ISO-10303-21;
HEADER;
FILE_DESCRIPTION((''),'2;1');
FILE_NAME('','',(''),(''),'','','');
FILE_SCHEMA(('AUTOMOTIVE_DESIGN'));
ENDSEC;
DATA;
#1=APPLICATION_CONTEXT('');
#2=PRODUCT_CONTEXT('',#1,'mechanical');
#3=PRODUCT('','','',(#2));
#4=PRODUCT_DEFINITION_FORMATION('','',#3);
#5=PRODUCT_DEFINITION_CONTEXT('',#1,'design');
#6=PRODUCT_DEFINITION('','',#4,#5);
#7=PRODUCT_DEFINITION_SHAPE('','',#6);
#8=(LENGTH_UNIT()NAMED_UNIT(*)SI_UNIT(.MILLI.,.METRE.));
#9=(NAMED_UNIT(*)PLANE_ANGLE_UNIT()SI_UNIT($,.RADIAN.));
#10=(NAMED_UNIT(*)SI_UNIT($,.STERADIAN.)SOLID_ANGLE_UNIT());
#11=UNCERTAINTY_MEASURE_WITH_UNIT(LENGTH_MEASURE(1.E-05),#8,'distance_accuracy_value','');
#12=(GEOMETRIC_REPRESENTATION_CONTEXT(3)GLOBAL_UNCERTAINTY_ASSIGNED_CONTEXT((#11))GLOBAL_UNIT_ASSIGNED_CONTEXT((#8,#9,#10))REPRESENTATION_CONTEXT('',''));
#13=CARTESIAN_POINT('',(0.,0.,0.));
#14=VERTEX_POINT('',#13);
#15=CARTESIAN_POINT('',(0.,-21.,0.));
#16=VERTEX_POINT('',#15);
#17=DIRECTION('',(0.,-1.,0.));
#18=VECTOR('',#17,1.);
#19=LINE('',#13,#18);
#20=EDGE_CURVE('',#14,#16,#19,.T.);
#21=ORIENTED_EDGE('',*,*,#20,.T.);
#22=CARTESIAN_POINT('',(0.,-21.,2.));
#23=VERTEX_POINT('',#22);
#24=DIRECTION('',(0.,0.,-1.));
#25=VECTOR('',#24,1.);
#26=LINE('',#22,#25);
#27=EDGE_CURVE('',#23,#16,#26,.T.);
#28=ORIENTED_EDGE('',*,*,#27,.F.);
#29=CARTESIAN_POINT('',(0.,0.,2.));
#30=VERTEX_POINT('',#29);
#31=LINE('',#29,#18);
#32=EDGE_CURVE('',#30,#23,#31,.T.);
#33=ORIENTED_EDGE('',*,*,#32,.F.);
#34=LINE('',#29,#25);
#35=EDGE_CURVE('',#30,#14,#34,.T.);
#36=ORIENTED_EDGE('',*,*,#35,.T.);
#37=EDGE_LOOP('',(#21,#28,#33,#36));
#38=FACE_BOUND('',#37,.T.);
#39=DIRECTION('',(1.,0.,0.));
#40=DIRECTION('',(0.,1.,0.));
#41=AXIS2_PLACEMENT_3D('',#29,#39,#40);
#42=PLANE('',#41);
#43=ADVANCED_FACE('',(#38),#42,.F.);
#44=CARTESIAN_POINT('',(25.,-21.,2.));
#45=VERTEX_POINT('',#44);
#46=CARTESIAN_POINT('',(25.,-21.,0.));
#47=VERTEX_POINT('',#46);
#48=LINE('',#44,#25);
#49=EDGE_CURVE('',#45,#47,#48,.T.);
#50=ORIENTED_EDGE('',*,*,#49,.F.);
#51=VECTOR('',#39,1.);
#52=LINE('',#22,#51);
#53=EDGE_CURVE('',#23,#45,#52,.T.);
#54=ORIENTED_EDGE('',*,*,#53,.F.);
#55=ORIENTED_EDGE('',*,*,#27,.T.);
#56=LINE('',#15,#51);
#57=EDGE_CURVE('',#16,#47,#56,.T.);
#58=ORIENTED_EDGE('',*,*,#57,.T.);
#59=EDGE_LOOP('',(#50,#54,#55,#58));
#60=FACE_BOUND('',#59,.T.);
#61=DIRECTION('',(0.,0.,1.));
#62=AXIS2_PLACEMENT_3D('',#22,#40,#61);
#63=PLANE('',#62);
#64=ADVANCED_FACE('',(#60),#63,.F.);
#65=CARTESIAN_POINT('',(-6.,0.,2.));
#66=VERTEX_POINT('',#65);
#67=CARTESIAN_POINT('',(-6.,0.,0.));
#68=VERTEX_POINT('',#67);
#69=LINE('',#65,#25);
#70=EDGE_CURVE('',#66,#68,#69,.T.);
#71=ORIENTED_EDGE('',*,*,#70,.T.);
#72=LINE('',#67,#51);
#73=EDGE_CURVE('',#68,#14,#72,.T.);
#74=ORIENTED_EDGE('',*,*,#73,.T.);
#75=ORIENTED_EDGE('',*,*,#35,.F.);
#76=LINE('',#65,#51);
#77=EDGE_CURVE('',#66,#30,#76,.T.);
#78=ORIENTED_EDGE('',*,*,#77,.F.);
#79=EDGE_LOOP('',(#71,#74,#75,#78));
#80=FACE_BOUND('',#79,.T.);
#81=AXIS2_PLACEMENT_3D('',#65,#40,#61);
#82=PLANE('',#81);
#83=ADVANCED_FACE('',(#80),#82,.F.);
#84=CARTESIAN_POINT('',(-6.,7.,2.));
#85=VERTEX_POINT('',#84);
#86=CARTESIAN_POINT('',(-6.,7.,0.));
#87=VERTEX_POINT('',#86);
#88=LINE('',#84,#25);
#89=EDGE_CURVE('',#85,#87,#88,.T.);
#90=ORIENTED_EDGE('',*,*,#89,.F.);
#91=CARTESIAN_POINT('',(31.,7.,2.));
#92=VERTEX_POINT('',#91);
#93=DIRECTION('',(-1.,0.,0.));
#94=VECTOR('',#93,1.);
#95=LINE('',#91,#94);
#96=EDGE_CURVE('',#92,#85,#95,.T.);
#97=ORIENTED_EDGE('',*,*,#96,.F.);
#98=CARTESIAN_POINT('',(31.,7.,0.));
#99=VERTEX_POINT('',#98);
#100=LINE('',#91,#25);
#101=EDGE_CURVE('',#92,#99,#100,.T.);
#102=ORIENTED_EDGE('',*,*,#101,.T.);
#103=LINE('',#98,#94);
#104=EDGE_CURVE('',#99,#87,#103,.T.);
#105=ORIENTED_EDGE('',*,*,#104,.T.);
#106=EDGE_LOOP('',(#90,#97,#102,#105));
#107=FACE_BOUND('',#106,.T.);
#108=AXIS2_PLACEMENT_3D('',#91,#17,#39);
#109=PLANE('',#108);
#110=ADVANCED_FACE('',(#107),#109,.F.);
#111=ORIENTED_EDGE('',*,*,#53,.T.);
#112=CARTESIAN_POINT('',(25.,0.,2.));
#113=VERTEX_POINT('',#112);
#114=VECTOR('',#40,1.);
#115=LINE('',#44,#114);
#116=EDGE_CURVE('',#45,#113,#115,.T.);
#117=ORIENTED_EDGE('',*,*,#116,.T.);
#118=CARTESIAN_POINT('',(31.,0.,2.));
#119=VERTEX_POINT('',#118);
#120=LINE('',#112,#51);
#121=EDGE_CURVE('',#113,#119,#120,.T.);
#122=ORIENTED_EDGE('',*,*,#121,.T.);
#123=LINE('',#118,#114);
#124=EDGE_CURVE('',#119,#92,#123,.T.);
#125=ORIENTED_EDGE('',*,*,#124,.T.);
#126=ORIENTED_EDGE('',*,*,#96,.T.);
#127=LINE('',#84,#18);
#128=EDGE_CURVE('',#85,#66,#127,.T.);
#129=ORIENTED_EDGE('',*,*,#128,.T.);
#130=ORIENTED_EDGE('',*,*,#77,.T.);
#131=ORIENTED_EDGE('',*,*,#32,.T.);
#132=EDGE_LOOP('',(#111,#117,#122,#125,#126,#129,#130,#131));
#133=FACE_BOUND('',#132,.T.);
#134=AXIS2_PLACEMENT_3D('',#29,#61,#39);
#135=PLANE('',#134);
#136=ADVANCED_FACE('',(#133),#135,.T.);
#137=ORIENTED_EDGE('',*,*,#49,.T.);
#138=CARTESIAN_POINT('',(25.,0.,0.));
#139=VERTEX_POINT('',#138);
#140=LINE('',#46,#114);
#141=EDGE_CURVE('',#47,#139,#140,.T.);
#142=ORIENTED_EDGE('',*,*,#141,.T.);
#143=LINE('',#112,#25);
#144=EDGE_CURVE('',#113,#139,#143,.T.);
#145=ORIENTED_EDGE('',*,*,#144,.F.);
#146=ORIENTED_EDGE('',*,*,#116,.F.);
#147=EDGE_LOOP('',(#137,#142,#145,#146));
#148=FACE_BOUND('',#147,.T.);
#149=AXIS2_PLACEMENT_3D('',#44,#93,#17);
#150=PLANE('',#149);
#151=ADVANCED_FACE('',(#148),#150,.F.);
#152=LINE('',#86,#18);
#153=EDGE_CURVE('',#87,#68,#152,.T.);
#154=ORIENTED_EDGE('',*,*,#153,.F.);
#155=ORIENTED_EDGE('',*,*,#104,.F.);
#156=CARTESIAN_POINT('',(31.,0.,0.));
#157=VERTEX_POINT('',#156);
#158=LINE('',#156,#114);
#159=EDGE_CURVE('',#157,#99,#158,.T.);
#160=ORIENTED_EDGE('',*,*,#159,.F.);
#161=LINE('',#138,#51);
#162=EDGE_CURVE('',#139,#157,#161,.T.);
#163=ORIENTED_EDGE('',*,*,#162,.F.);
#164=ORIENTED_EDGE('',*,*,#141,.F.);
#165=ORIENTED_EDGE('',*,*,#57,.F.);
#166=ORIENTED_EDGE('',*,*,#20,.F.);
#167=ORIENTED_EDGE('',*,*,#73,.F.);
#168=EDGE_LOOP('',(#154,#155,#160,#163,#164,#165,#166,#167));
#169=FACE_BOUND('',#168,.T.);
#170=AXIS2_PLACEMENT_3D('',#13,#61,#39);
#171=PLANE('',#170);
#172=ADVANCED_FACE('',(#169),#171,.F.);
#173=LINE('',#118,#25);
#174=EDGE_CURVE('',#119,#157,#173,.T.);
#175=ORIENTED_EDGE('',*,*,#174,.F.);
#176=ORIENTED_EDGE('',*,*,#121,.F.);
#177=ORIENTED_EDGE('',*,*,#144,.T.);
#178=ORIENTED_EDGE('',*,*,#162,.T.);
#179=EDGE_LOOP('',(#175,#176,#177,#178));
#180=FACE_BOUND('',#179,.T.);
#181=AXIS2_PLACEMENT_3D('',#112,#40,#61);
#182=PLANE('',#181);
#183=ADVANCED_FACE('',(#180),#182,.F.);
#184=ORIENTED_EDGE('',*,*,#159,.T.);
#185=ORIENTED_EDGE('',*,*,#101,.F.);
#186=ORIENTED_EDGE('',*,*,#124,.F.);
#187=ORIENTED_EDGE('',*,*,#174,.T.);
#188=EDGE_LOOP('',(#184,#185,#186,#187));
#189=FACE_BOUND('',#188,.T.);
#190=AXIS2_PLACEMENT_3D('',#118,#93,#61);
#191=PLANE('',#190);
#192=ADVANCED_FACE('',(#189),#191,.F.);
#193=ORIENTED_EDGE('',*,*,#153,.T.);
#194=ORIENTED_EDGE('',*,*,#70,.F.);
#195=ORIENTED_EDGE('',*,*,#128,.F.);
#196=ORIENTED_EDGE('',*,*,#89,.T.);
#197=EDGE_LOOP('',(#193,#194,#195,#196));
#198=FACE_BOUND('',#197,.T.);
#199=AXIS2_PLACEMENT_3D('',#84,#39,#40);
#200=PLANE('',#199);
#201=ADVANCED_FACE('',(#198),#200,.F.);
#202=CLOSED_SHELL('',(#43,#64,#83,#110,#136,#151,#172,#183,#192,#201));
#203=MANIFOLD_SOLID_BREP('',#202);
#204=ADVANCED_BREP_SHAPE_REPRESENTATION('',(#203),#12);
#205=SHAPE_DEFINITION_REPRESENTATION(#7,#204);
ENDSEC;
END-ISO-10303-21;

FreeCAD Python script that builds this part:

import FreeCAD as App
import Part
import Sketcher
from FreeCAD import Vector
Q = App.Units.Quantity

doc = App.newDocument("Part")
body = doc.addObject("PartDesign::Body", "Body")

sketch1 = doc.addObject("Sketcher::SketchObject", "Sketch")
body.addObject(sketch1)
sketch1.AttachmentSupport = (doc.XY_Plane, [""])
sketch1.MapMode = "FlatFace"
sketch1.addGeometry([
    Part.LineSegment(Vector(0, 0, 0), Vector(0, -21, 0)),
    Part.LineSegment(Vector(0, -21, 0), Vector(25, -21, 0)),
    Part.LineSegment(Vector(25, -21, 0), Vector(25, 0, 0)),
    Part.LineSegment(Vector(25, 0, 0), Vector(31, 0, 0)),
    Part.LineSegment(Vector(31, 0, 0), Vector(31, 7, 0)),
    Part.LineSegment(Vector(31, 7, 0), Vector(-6, 7, 0)),
    Part.LineSegment(Vector(-6, 7, 0), Vector(-6, 0, 0)),
    Part.LineSegment(Vector(-6, 0, 0), Vector(0, 0, 0)),
], False)
sketch1.addConstraint([
    Sketcher.Constraint("Coincident", 0, 2, 1, 1),
    Sketcher.Constraint("Coincident", 1, 2, 2, 1),
    Sketcher.Constraint("Coincident", 2, 2, 3, 1),
    Sketcher.Constraint("Coincident", 3, 2, 4, 1),
    Sketcher.Constraint("Coincident", 4, 2, 5, 1),
    Sketcher.Constraint("Coincident", 5, 2, 6, 1),
    Sketcher.Constraint("Coincident", 6, 2, 7, 1),
    Sketcher.Constraint("Coincident", 7, 2, 0, 1),
    Sketcher.Constraint("Vertical", 0),
    Sketcher.Constraint("Horizontal", 1),
    Sketcher.Constraint("Vertical", 2),
    Sketcher.Constraint("Horizontal", 3),
    Sketcher.Constraint("Vertical", 4),
    Sketcher.Constraint("Horizontal", 5),
    Sketcher.Constraint("Vertical", 6),
    Sketcher.Constraint("Horizontal", 7),
    Sketcher.Constraint("Coincident", 7, 2, -1, 1),
    Sketcher.Constraint("PointOnObject", 2, 2, -1),
    Sketcher.Constraint("Equal", 3, 7),
    Sketcher.Constraint("DistanceX", 1, 1, 1, 2, Q("25 mm")),
    Sketcher.Constraint("DistanceX", 3, 1, 3, 2, Q("6 mm")),
    Sketcher.Constraint("DistanceY", 0, 2, 0, 1, Q("21 mm")),
    Sketcher.Constraint("DistanceY", 4, 1, 4, 2, Q("7 mm")),
])
pad1 = doc.addObject("PartDesign::Pad", "Pad")
body.addObject(pad1)
pad1.Profile = sketch1
pad1.Length = 2

doc.recompute()
